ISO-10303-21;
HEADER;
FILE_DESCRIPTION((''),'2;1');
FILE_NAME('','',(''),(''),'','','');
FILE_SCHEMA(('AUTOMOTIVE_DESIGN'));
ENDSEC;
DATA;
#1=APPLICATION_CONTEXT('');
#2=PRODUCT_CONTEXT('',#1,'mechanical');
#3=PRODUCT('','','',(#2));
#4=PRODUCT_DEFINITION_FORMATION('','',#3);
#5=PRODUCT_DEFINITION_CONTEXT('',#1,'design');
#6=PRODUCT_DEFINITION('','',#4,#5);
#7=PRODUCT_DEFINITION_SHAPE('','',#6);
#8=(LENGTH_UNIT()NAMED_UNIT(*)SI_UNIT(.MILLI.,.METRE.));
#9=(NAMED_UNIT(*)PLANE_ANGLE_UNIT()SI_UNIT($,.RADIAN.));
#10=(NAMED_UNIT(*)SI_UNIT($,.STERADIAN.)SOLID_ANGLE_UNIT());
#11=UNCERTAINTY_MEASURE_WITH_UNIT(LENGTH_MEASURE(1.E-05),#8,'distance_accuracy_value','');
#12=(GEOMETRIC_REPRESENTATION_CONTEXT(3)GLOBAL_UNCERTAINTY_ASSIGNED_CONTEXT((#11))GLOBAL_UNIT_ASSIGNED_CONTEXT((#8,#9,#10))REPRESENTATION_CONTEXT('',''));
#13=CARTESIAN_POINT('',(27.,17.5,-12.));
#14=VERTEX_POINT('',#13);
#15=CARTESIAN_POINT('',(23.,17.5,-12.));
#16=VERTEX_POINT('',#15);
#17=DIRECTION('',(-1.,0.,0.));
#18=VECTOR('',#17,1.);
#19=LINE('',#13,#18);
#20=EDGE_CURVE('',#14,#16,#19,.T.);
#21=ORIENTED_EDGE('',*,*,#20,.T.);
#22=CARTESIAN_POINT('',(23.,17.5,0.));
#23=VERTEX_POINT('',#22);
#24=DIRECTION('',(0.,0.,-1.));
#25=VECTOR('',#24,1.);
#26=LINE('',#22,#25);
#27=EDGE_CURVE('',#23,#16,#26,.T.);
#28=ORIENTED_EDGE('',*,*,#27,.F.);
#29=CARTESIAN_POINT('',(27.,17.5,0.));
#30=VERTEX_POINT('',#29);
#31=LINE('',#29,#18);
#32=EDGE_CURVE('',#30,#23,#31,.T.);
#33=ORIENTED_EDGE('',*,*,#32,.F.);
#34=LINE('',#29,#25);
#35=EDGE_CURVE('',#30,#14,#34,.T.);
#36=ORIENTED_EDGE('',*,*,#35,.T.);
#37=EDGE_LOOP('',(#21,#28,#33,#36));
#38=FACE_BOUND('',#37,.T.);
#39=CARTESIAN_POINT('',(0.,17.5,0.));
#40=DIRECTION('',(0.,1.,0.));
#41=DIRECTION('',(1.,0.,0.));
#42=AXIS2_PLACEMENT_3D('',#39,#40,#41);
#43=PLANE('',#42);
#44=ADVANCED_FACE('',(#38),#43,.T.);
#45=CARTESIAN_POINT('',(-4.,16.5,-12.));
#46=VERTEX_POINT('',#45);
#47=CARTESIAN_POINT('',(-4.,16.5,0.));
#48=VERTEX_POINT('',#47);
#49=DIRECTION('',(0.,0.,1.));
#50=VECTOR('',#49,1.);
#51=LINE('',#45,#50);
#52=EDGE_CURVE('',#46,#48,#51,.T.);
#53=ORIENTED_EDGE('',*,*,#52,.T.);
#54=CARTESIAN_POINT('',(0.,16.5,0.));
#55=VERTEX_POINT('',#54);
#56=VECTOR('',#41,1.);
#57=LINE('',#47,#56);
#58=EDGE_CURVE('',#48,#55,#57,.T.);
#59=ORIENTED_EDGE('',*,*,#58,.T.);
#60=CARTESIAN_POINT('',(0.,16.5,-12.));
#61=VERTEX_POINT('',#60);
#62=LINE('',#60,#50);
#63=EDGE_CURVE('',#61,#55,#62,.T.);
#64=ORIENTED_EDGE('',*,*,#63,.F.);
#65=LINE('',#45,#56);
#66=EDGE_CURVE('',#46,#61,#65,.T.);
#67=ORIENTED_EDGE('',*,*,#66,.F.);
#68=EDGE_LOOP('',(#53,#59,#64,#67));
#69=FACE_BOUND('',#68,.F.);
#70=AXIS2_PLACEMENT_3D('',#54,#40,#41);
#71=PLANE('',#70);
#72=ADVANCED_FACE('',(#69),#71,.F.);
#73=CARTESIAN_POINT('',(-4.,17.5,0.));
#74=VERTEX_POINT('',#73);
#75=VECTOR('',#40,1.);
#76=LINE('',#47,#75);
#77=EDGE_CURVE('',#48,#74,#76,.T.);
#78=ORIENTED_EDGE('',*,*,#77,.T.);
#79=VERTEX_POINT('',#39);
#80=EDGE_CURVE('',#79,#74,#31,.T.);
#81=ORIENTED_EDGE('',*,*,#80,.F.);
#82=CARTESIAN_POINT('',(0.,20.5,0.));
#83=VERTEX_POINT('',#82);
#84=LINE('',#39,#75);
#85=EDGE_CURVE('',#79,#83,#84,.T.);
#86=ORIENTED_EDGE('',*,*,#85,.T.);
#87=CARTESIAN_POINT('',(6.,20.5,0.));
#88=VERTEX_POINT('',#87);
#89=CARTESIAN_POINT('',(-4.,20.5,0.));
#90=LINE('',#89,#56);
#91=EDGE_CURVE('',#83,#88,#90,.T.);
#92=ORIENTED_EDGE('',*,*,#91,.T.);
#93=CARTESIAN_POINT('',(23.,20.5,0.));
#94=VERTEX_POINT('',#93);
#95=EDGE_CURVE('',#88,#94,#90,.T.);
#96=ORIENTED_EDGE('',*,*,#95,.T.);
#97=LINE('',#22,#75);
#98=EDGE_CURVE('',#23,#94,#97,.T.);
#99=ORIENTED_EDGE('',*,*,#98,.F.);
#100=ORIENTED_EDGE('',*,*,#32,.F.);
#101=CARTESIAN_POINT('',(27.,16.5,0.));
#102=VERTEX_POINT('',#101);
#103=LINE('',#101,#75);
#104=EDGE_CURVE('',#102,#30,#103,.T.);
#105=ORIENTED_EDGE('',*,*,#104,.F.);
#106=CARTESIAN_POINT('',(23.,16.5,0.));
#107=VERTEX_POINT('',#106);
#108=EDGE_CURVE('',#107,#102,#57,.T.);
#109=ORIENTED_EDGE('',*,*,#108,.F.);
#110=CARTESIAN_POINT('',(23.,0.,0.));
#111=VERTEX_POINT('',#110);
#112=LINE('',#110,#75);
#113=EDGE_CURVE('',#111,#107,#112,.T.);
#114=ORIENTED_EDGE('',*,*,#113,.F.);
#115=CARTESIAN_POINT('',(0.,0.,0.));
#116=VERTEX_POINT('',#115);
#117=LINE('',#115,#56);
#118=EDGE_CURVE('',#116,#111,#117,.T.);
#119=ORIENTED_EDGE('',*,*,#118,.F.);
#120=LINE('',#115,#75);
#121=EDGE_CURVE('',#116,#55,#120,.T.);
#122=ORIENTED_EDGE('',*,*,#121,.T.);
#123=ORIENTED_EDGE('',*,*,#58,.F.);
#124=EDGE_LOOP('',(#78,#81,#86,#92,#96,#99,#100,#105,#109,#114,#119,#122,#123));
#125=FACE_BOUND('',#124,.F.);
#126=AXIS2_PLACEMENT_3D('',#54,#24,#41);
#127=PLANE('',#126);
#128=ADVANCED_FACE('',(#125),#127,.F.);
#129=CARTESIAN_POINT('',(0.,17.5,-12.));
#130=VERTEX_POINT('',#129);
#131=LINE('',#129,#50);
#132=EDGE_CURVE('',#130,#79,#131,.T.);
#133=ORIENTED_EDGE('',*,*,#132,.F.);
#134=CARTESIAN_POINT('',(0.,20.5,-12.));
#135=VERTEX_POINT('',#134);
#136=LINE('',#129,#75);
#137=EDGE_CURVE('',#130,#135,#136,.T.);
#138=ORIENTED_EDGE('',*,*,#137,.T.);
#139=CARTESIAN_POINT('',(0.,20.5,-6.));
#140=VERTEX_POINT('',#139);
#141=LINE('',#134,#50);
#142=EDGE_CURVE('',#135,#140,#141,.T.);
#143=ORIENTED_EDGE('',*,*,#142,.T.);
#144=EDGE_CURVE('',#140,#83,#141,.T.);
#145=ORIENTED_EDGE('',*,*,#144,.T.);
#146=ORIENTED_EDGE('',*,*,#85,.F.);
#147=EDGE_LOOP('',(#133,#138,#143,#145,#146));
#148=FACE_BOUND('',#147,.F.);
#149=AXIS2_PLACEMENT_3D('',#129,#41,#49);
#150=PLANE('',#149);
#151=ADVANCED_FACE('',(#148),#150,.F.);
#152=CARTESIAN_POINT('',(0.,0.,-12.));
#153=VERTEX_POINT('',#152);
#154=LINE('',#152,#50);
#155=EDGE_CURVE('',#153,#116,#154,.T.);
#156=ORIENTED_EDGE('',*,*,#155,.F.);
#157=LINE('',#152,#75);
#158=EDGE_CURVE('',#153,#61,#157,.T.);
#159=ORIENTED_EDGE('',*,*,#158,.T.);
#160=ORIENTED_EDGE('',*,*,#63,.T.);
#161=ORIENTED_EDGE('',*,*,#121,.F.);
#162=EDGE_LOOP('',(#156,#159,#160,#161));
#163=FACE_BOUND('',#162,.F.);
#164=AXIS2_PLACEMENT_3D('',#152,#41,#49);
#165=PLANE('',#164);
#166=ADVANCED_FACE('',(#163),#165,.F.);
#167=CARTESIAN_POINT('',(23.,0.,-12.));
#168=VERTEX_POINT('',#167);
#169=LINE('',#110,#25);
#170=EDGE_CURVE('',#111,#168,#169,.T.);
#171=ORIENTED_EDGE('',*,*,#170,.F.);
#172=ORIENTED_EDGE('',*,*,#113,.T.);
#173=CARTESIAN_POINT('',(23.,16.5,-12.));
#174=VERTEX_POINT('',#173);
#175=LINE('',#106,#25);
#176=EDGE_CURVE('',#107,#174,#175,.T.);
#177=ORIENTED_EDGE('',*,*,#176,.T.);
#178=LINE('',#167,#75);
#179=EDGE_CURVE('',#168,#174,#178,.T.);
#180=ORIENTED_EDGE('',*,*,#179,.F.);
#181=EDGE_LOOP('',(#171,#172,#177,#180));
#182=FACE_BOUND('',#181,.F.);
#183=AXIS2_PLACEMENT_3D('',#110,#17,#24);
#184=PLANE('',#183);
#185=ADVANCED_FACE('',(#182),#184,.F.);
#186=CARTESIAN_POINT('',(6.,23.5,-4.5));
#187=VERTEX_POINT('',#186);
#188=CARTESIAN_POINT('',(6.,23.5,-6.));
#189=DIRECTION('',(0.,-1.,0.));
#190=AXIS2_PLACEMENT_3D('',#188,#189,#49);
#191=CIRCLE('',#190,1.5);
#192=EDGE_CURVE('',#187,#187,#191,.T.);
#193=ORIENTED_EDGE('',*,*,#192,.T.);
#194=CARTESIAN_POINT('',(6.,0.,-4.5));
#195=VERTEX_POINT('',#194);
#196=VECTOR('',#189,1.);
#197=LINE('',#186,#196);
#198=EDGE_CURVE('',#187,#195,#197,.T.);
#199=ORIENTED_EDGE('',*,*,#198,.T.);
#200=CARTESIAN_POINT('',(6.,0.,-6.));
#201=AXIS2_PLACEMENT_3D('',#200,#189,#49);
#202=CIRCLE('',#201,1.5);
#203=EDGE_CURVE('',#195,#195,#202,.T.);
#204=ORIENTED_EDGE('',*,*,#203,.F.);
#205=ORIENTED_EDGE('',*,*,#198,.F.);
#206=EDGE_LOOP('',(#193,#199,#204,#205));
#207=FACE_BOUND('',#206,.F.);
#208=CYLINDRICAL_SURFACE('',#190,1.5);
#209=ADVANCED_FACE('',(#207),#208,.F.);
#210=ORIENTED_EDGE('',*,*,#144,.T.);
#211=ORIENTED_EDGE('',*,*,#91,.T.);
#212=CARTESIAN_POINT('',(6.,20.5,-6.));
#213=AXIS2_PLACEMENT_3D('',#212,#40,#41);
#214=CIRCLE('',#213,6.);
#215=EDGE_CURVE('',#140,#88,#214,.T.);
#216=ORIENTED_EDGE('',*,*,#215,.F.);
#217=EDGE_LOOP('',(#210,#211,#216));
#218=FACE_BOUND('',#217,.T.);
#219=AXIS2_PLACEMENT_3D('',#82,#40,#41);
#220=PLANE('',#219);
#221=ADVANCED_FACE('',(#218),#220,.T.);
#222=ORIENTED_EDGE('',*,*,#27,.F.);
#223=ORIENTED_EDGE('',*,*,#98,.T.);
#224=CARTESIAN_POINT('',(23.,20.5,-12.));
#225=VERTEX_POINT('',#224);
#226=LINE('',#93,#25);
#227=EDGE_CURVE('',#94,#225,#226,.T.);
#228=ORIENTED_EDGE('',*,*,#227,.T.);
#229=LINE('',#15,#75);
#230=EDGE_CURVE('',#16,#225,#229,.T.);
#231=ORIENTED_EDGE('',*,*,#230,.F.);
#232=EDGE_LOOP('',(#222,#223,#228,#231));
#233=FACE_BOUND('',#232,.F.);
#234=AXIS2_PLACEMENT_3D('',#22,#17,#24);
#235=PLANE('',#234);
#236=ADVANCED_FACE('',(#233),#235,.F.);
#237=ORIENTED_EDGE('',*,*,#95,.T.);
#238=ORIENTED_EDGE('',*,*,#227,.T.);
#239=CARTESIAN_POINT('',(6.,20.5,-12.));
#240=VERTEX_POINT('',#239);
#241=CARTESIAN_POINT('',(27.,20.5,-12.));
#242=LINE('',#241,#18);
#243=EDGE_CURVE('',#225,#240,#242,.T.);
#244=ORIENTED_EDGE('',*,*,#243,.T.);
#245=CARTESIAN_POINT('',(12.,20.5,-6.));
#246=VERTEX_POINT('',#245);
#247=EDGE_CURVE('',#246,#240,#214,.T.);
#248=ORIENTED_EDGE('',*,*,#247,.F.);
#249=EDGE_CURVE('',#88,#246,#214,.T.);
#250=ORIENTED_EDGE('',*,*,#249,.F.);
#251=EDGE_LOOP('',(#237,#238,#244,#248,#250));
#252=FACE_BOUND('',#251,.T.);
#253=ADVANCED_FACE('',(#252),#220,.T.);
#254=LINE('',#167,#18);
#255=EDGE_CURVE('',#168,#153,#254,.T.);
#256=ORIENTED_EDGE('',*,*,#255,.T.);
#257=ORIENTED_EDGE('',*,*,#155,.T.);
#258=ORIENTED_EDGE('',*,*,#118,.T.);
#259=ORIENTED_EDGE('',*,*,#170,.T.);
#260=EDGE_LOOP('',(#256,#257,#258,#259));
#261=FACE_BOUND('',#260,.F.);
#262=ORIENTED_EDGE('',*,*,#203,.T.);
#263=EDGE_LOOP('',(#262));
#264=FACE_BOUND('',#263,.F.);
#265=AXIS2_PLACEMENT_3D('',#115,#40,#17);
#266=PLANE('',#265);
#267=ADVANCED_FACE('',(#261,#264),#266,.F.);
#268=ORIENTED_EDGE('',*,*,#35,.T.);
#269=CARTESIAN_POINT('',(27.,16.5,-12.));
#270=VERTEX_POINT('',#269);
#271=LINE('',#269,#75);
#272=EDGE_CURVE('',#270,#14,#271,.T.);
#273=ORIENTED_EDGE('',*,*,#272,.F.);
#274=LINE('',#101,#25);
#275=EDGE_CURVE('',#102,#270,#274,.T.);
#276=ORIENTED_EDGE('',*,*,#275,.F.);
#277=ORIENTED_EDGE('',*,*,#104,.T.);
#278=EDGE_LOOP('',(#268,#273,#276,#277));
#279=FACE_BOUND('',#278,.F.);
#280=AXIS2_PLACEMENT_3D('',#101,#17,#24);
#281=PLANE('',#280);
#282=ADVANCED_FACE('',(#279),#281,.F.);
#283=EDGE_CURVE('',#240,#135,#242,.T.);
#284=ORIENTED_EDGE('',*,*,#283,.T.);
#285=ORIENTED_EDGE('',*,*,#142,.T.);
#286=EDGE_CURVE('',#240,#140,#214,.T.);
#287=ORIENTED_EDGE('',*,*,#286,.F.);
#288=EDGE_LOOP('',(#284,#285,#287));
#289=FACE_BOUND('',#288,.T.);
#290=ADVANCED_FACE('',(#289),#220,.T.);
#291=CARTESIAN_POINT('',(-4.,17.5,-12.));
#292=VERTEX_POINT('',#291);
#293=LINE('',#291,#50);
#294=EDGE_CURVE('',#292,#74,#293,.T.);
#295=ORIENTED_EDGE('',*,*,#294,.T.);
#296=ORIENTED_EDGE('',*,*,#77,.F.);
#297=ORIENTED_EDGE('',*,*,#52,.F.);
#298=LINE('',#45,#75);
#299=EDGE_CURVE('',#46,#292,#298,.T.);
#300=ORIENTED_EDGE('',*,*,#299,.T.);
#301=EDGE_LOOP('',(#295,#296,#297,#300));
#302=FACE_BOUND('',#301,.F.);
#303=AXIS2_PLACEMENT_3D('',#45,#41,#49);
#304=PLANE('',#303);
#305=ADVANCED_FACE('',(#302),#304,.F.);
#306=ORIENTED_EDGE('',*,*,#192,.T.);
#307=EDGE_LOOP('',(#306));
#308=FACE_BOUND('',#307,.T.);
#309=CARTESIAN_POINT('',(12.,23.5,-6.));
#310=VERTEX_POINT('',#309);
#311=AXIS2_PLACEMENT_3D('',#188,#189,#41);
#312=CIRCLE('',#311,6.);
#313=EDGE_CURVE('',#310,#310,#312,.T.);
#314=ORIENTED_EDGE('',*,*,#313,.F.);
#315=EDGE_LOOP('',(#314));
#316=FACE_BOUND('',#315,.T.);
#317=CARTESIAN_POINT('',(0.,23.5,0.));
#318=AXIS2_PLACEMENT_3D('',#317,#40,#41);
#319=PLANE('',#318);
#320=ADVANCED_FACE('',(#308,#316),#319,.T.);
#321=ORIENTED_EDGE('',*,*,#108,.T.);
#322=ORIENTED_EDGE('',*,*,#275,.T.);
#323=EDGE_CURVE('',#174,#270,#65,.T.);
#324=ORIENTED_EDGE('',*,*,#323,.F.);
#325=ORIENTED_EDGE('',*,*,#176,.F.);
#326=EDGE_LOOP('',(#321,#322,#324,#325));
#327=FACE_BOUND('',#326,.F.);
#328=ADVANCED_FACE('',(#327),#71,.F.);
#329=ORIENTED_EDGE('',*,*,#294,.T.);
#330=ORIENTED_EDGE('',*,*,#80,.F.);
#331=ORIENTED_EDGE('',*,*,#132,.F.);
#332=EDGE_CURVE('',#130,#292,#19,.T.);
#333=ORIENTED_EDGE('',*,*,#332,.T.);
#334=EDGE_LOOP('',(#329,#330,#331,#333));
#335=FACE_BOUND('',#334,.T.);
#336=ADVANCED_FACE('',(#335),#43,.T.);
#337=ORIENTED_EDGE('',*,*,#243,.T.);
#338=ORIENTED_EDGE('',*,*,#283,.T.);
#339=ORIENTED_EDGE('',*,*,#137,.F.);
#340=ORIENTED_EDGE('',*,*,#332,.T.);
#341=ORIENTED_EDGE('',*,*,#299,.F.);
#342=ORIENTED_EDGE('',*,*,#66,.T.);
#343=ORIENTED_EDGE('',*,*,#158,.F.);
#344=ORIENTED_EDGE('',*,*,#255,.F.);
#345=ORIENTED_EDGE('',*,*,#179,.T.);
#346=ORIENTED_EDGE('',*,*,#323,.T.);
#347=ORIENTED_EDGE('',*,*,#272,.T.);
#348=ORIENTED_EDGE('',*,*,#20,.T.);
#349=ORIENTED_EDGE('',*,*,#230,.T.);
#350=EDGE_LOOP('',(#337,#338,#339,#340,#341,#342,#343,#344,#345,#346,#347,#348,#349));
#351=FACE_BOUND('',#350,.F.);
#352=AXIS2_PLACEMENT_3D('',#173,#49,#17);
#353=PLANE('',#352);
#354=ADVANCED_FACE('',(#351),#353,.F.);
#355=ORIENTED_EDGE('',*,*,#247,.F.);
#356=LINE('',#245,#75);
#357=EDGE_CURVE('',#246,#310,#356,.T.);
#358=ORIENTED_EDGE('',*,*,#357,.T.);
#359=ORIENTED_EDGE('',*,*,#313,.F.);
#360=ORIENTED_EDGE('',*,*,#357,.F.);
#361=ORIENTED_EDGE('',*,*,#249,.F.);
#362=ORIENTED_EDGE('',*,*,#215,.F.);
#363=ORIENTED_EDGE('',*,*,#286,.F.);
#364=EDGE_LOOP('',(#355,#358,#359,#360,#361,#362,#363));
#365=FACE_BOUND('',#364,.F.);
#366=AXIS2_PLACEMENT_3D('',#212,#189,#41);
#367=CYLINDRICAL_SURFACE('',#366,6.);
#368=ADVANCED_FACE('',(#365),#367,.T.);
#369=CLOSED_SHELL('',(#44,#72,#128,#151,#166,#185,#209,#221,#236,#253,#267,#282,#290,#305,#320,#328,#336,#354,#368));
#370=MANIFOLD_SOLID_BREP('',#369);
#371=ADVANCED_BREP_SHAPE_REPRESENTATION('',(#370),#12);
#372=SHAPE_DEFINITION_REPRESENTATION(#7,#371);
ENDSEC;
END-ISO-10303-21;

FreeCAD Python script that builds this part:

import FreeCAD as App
import Part
import Sketcher
from FreeCAD import Vector


def add_polygon(sketch, points):
    """Adds a closed chain of lines whose ends are joined by coincident constraints."""
    first, n = sketch.GeometryCount, len(points)
    for a, b in zip(points, points[1:] + points[:1]):
        sketch.addGeometry(Part.LineSegment(App.Vector(*a, 0), App.Vector(*b, 0)), False)
    for i in range(n):
        sketch.addConstraint(Sketcher.Constraint("Coincident", first + i, 2, first + (i + 1) % n, 1))

doc = App.newDocument("Part")
body = doc.addObject("PartDesign::Body", "Body")

sketch1 = body.newObject("Sketcher::SketchObject", "Sketch")
sketch1.AttachmentSupport = (doc.getObject("XZ_Plane"), [""])
sketch1.MapMode = "FlatFace"
add_polygon(sketch1, [(0, -12), (0, 0), (23, 0), (23, -12)])
sketch1.addConstraint([
    Sketcher.Constraint("Vertical", 0),
    Sketcher.Constraint("Horizontal", 1),
    Sketcher.Constraint("Vertical", 2),
    Sketcher.Constraint("Horizontal", 3),
    Sketcher.Constraint("Coincident", 0, 2, -1, 1),
    Sketcher.Constraint("DistanceX", 1, 1, 1, 2, 23.0),
    Sketcher.Constraint("DistanceY", 0, 1, 0, 2, 12.0),
])
pad1 = body.newObject("PartDesign::Pad", "Pad")
pad1.Profile = sketch1
pad1.Length = 16.5
pad1.Reversed = True

sketch2 = body.newObject("Sketcher::SketchObject", "Sketch001")
sketch2.AttachmentSupport = (doc.getObject("XZ_Plane"), [""])
sketch2.MapMode = "FlatFace"
sketch2.AttachmentOffset = App.Placement(Vector(0, 0, -16.5), App.Rotation())
add_polygon(sketch2, [(27, 0), (27, -12), (-4, -12), (-4, 0)])
sketch2.addConstraint([
    Sketcher.Constraint("Vertical", 0),
    Sketcher.Constraint("Horizontal", 1),
    Sketcher.Constraint("Vertical", 2),
    Sketcher.Constraint("Horizontal", 3),
    Sketcher.Constraint("PointOnObject", 2, 2, -1),
    Sketcher.Constraint("DistanceX", 1, 2, -1, 1, 4.0),
    Sketcher.Constraint("DistanceX", 1, 2, 1, 1, 31.0),
    Sketcher.Constraint("DistanceY", 0, 2, 0, 1, 12.0),
])
pad2 = body.newObject("PartDesign::Pad", "Pad001")
pad2.Profile = sketch2
pad2.Length = 1
pad2.Reversed = True

sketch3 = body.newObject("Sketcher::SketchObject", "Sketch002")
sketch3.AttachmentSupport = (doc.getObject("XZ_Plane"), [""])
sketch3.MapMode = "FlatFace"
sketch3.AttachmentOffset = App.Placement(Vector(0, 0, -17.5), App.Rotation())
add_polygon(sketch3, [(0, -12), (0, 0), (23, 0), (23, -12)])
sketch3.addConstraint([
    Sketcher.Constraint("Vertical", 0),
    Sketcher.Constraint("Horizontal", 1),
    Sketcher.Constraint("Vertical", 2),
    Sketcher.Constraint("Horizontal", 3),
    Sketcher.Constraint("Coincident", 0, 2, -1, 1),
    Sketcher.Constraint("DistanceX", 1, 1, 1, 2, 23.0),
    Sketcher.Constraint("DistanceY", 0, 1, 0, 2, 12.0),
])
pad3 = body.newObject("PartDesign::Pad", "Pad002")
pad3.Profile = sketch3
pad3.Length = 3
pad3.Reversed = True

sketch4 = body.newObject("Sketcher::SketchObject", "Sketch003")
sketch4.AttachmentSupport = (doc.getObject("XZ_Plane"), [""])
sketch4.MapMode = "FlatFace"
sketch4.AttachmentOffset = App.Placement(Vector(0, 0, -20.5), App.Rotation())
sketch4.addGeometry(Part.Circle(Vector(6, -6, 0), Vector(0, 0, 1), 6), False)
sketch4.addConstraint([
    Sketcher.Constraint("Diameter", 0, 12.0),
    Sketcher.Constraint("DistanceX", -1, 1, 0, 3, 6.0),
    Sketcher.Constraint("DistanceY", 0, 3, -1, 1, 6.0),
])
pad4 = body.newObject("PartDesign::Pad", "Pad003")
pad4.Profile = sketch4
pad4.Length = 3
pad4.Reversed = True

sketch5 = body.newObject("Sketcher::SketchObject", "Sketch004")
sketch5.AttachmentSupport = (doc.getObject("XZ_Plane"), [""])
sketch5.MapMode = "FlatFace"
sketch5.AttachmentOffset = App.Placement(Vector(0, 0, -23.5), App.Rotation())
sketch5.addGeometry(Part.Circle(Vector(6, -6, 0), Vector(0, 0, 1), 1.5), False)
sketch5.addConstraint([
    Sketcher.Constraint("Diameter", 0, 3.0),
    Sketcher.Constraint("DistanceX", -1, 1, 0, 3, 6.0),
    Sketcher.Constraint("DistanceY", 0, 3, -1, 1, 6.0),
])
doc.recompute()
hole = body.newObject("PartDesign::Hole", "Hole")
hole.Profile = sketch5
hole.ThreadType = "None"
hole.Diameter = 3
hole.DepthType = "ThroughAll"
hole.Reversed = True

doc.recompute()
